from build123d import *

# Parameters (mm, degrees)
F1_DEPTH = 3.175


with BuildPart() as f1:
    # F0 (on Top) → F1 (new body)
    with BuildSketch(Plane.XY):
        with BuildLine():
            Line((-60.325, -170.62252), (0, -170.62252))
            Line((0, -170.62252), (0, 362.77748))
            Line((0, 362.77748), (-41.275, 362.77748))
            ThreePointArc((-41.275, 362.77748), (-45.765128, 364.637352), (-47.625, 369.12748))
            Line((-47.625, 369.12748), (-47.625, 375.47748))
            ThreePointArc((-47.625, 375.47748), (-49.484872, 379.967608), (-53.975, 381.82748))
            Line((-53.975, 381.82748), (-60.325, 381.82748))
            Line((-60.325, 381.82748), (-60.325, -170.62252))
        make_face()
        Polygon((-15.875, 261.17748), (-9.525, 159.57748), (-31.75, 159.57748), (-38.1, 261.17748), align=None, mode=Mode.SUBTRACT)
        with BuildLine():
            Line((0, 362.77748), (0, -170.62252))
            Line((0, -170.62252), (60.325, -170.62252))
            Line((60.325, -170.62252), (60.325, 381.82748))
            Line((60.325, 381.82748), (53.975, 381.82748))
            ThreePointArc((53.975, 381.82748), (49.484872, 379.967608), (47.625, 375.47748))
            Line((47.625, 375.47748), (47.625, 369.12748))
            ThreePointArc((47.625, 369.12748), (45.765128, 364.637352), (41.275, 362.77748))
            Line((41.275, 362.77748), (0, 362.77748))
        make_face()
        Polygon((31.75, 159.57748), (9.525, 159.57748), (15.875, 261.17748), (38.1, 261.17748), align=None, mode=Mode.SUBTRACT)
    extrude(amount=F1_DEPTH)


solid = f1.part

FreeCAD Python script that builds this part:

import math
import FreeCAD as App
import Part
import Sketcher
Q = App.Units.Quantity

doc = App.newDocument("Part")
body = doc.addObject("PartDesign::Body", "Body")

# Sketch on XY plane
sketch1 = body.newObject("Sketcher::SketchObject", "Sketch")
sketch1.AttachmentSupport = (doc.getObject("XY_Plane"), [""])
sketch1.MapMode = "FlatFace"
sketch1.addGeometry(Part.LineSegment(App.Vector(-60, -171, 0), App.Vector(60, -171, 0)), False)
sketch1.addGeometry(Part.LineSegment(App.Vector(60, -171, 0), App.Vector(60, 382, 0)), False)
sketch1.addGeometry(Part.LineSegment(App.Vector(60, 382, 0), App.Vector(54, 382, 0)), False)
sketch1.addGeometry(Part.ArcOfCircle(Part.Circle(App.Vector(54, 375, 0), App.Vector(0, 0, 1), 6), math.radians(90), math.radians(180)), False)
sketch1.addGeometry(Part.LineSegment(App.Vector(48, 375, 0), App.Vector(48, 369, 0)), False)
sketch1.addGeometry(Part.ArcOfCircle(Part.Circle(App.Vector(41, 369, 0), App.Vector(0, 0, 1), 6), math.radians(-90), math.radians(0)), False)
sketch1.addGeometry(Part.LineSegment(App.Vector(41, 363, 0), App.Vector(-41, 363, 0)), False)
sketch1.addGeometry(Part.ArcOfCircle(Part.Circle(App.Vector(-41, 369, 0), App.Vector(0, 0, 1), 6), math.radians(-180), math.radians(-90)), False)
sketch1.addGeometry(Part.LineSegment(App.Vector(-48, 369, 0), App.Vector(-48, 375, 0)), False)
sketch1.addGeometry(Part.ArcOfCircle(Part.Circle(App.Vector(-54, 375, 0), App.Vector(0, 0, 1), 6), math.radians(0), math.radians(90)), False)
sketch1.addGeometry(Part.LineSegment(App.Vector(-54, 382, 0), App.Vector(-60, 382, 0)), False)
sketch1.addGeometry(Part.LineSegment(App.Vector(-60, 382, 0), App.Vector(-60, -171, 0)), False)
sketch1.addGeometry(Part.LineSegment(App.Vector(-38, 261, 0), App.Vector(-16, 261, 0)), False)
sketch1.addGeometry(Part.LineSegment(App.Vector(-16, 261, 0), App.Vector(-10, 160, 0)), False)
sketch1.addGeometry(Part.LineSegment(App.Vector(-10, 160, 0), App.Vector(-32, 160, 0)), False)
sketch1.addGeometry(Part.LineSegment(App.Vector(-32, 160, 0), App.Vector(-38, 261, 0)), False)
sketch1.addGeometry(Part.LineSegment(App.Vector(38, 261, 0), App.Vector(32, 160, 0)), False)
sketch1.addGeometry(Part.LineSegment(App.Vector(32, 160, 0), App.Vector(10, 160, 0)), False)
sketch1.addGeometry(Part.LineSegment(App.Vector(10, 160, 0), App.Vector(16, 261, 0)), False)
sketch1.addGeometry(Part.LineSegment(App.Vector(16, 261, 0), App.Vector(38, 261, 0)), False)
sketch1.addConstraint(Sketcher.Constraint("Coincident", 0, 2, 1, 1))
sketch1.addConstraint(Sketcher.Constraint("Coincident", 1, 2, 2, 1))
sketch1.addConstraint(Sketcher.Constraint("Tangent", 2, 2, 3, 1))
sketch1.addConstraint(Sketcher.Constraint("Tangent", 3, 2, 4, 1))
sketch1.addConstraint(Sketcher.Constraint("Tangent", 4, 2, 5, 2))
sketch1.addConstraint(Sketcher.Constraint("Tangent", 5, 1, 6, 1))
sketch1.addConstraint(Sketcher.Constraint("Tangent", 6, 2, 7, 2))
sketch1.addConstraint(Sketcher.Constraint("Tangent", 7, 1, 8, 1))
sketch1.addConstraint(Sketcher.Constraint("Tangent", 8, 2, 9, 1))
sketch1.addConstraint(Sketcher.Constraint("Tangent", 9, 2, 10, 1))
sketch1.addConstraint(Sketcher.Constraint("Coincident", 10, 2, 11, 1))
sketch1.addConstraint(Sketcher.Constraint("Coincident", 11, 2, 0, 1))
sketch1.addConstraint(Sketcher.Constraint("Coincident", 12, 2, 13, 1))
sketch1.addConstraint(Sketcher.Constraint("Coincident", 13, 2, 14, 1))
sketch1.addConstraint(Sketcher.Constraint("Coincident", 14, 2, 15, 1))
sketch1.addConstraint(Sketcher.Constraint("Coincident", 15, 2, 12, 1))
sketch1.addConstraint(Sketcher.Constraint("Coincident", 16, 2, 17, 1))
sketch1.addConstraint(Sketcher.Constraint("Coincident", 17, 2, 18, 1))
sketch1.addConstraint(Sketcher.Constraint("Coincident", 18, 2, 19, 1))
sketch1.addConstraint(Sketcher.Constraint("Coincident", 19, 2, 16, 1))
sketch1.addConstraint(Sketcher.Constraint("Horizontal", 0))
sketch1.addConstraint(Sketcher.Constraint("Vertical", 1))
sketch1.addConstraint(Sketcher.Constraint("Horizontal", 2))
sketch1.addConstraint(Sketcher.Constraint("Vertical", 4))
sketch1.addConstraint(Sketcher.Constraint("Horizontal", 6))
sketch1.addConstraint(Sketcher.Constraint("Vertical", 8))
sketch1.addConstraint(Sketcher.Constraint("Horizontal", 10))
sketch1.addConstraint(Sketcher.Constraint("Vertical", 11))
sketch1.addConstraint(Sketcher.Constraint("Horizontal", 12))
sketch1.addConstraint(Sketcher.Constraint("Horizontal", 14))
sketch1.addConstraint(Sketcher.Constraint("Horizontal", 17))
sketch1.addConstraint(Sketcher.Constraint("Horizontal", 19))
sketch1.addConstraint(Sketcher.Constraint("Equal", 3, 5))
sketch1.addConstraint(Sketcher.Constraint("Equal", 5, 7))
sketch1.addConstraint(Sketcher.Constraint("Equal", 7, 9))
sketch1.addConstraint(Sketcher.Constraint("Symmetric", 3, 3, 9, 3, -2))
sketch1.addConstraint(Sketcher.Constraint("Symmetric", 14, 2, 16, 2, -2))
sketch1.addConstraint(Sketcher.Constraint("Symmetric", 12, 2, 18, 2, -2))
sketch1.addConstraint(Sketcher.Constraint("Parallel", 13, 15))
sketch1.addConstraint(Sketcher.Constraint("Parallel", 16, 18))
sketch1.addConstraint(Sketcher.Constraint("Equal", 2, 10))
sketch1.addConstraint(Sketcher.Constraint("Equal", 14, 17))
sketch1.addConstraint(Sketcher.Constraint("Equal", 10, 4))
sketch1.addConstraint(Sketcher.Constraint("Radius", 3, Q("0.25 in")))
sketch1.addConstraint(Sketcher.Constraint("DistanceX", 7, 3, 0, 2, Q("4 in")))
sketch1.addConstraint(Sketcher.Constraint("DistanceY", 11, 2, 6, 2, Q("21 in")))
sketch1.addConstraint(Sketcher.Constraint("DistanceX", 6, 2, 12, 2, Q("1 in")))
sketch1.addConstraint(Sketcher.Constraint("DistanceY", 12, 2, 6, 2, Q("4 in")))
sketch1.addConstraint(Sketcher.Constraint("DistanceY", 13, 2, 12, 2, Q("4 in")))
sketch1.addConstraint(Sketcher.Constraint("DistanceX", 13, 2, 5, 1, Q("2 in")))
sketch1.addConstraint(Sketcher.Constraint("DistanceX", 15, 2, 19, 2, Q("3 in")))
sketch1.addConstraint(Sketcher.Constraint("DistanceX", 0, 1, 0, 2, Q("4.75 in")))
sketch1.addConstraint(Sketcher.Constraint("DistanceY", -1, 1, 3, 3, Q("375.47748 mm")))
pad1 = body.newObject("PartDesign::Pad", "Pad")
pad1.Profile = sketch1
pad1.Length = Q("0.125 in")

doc.recompute()
